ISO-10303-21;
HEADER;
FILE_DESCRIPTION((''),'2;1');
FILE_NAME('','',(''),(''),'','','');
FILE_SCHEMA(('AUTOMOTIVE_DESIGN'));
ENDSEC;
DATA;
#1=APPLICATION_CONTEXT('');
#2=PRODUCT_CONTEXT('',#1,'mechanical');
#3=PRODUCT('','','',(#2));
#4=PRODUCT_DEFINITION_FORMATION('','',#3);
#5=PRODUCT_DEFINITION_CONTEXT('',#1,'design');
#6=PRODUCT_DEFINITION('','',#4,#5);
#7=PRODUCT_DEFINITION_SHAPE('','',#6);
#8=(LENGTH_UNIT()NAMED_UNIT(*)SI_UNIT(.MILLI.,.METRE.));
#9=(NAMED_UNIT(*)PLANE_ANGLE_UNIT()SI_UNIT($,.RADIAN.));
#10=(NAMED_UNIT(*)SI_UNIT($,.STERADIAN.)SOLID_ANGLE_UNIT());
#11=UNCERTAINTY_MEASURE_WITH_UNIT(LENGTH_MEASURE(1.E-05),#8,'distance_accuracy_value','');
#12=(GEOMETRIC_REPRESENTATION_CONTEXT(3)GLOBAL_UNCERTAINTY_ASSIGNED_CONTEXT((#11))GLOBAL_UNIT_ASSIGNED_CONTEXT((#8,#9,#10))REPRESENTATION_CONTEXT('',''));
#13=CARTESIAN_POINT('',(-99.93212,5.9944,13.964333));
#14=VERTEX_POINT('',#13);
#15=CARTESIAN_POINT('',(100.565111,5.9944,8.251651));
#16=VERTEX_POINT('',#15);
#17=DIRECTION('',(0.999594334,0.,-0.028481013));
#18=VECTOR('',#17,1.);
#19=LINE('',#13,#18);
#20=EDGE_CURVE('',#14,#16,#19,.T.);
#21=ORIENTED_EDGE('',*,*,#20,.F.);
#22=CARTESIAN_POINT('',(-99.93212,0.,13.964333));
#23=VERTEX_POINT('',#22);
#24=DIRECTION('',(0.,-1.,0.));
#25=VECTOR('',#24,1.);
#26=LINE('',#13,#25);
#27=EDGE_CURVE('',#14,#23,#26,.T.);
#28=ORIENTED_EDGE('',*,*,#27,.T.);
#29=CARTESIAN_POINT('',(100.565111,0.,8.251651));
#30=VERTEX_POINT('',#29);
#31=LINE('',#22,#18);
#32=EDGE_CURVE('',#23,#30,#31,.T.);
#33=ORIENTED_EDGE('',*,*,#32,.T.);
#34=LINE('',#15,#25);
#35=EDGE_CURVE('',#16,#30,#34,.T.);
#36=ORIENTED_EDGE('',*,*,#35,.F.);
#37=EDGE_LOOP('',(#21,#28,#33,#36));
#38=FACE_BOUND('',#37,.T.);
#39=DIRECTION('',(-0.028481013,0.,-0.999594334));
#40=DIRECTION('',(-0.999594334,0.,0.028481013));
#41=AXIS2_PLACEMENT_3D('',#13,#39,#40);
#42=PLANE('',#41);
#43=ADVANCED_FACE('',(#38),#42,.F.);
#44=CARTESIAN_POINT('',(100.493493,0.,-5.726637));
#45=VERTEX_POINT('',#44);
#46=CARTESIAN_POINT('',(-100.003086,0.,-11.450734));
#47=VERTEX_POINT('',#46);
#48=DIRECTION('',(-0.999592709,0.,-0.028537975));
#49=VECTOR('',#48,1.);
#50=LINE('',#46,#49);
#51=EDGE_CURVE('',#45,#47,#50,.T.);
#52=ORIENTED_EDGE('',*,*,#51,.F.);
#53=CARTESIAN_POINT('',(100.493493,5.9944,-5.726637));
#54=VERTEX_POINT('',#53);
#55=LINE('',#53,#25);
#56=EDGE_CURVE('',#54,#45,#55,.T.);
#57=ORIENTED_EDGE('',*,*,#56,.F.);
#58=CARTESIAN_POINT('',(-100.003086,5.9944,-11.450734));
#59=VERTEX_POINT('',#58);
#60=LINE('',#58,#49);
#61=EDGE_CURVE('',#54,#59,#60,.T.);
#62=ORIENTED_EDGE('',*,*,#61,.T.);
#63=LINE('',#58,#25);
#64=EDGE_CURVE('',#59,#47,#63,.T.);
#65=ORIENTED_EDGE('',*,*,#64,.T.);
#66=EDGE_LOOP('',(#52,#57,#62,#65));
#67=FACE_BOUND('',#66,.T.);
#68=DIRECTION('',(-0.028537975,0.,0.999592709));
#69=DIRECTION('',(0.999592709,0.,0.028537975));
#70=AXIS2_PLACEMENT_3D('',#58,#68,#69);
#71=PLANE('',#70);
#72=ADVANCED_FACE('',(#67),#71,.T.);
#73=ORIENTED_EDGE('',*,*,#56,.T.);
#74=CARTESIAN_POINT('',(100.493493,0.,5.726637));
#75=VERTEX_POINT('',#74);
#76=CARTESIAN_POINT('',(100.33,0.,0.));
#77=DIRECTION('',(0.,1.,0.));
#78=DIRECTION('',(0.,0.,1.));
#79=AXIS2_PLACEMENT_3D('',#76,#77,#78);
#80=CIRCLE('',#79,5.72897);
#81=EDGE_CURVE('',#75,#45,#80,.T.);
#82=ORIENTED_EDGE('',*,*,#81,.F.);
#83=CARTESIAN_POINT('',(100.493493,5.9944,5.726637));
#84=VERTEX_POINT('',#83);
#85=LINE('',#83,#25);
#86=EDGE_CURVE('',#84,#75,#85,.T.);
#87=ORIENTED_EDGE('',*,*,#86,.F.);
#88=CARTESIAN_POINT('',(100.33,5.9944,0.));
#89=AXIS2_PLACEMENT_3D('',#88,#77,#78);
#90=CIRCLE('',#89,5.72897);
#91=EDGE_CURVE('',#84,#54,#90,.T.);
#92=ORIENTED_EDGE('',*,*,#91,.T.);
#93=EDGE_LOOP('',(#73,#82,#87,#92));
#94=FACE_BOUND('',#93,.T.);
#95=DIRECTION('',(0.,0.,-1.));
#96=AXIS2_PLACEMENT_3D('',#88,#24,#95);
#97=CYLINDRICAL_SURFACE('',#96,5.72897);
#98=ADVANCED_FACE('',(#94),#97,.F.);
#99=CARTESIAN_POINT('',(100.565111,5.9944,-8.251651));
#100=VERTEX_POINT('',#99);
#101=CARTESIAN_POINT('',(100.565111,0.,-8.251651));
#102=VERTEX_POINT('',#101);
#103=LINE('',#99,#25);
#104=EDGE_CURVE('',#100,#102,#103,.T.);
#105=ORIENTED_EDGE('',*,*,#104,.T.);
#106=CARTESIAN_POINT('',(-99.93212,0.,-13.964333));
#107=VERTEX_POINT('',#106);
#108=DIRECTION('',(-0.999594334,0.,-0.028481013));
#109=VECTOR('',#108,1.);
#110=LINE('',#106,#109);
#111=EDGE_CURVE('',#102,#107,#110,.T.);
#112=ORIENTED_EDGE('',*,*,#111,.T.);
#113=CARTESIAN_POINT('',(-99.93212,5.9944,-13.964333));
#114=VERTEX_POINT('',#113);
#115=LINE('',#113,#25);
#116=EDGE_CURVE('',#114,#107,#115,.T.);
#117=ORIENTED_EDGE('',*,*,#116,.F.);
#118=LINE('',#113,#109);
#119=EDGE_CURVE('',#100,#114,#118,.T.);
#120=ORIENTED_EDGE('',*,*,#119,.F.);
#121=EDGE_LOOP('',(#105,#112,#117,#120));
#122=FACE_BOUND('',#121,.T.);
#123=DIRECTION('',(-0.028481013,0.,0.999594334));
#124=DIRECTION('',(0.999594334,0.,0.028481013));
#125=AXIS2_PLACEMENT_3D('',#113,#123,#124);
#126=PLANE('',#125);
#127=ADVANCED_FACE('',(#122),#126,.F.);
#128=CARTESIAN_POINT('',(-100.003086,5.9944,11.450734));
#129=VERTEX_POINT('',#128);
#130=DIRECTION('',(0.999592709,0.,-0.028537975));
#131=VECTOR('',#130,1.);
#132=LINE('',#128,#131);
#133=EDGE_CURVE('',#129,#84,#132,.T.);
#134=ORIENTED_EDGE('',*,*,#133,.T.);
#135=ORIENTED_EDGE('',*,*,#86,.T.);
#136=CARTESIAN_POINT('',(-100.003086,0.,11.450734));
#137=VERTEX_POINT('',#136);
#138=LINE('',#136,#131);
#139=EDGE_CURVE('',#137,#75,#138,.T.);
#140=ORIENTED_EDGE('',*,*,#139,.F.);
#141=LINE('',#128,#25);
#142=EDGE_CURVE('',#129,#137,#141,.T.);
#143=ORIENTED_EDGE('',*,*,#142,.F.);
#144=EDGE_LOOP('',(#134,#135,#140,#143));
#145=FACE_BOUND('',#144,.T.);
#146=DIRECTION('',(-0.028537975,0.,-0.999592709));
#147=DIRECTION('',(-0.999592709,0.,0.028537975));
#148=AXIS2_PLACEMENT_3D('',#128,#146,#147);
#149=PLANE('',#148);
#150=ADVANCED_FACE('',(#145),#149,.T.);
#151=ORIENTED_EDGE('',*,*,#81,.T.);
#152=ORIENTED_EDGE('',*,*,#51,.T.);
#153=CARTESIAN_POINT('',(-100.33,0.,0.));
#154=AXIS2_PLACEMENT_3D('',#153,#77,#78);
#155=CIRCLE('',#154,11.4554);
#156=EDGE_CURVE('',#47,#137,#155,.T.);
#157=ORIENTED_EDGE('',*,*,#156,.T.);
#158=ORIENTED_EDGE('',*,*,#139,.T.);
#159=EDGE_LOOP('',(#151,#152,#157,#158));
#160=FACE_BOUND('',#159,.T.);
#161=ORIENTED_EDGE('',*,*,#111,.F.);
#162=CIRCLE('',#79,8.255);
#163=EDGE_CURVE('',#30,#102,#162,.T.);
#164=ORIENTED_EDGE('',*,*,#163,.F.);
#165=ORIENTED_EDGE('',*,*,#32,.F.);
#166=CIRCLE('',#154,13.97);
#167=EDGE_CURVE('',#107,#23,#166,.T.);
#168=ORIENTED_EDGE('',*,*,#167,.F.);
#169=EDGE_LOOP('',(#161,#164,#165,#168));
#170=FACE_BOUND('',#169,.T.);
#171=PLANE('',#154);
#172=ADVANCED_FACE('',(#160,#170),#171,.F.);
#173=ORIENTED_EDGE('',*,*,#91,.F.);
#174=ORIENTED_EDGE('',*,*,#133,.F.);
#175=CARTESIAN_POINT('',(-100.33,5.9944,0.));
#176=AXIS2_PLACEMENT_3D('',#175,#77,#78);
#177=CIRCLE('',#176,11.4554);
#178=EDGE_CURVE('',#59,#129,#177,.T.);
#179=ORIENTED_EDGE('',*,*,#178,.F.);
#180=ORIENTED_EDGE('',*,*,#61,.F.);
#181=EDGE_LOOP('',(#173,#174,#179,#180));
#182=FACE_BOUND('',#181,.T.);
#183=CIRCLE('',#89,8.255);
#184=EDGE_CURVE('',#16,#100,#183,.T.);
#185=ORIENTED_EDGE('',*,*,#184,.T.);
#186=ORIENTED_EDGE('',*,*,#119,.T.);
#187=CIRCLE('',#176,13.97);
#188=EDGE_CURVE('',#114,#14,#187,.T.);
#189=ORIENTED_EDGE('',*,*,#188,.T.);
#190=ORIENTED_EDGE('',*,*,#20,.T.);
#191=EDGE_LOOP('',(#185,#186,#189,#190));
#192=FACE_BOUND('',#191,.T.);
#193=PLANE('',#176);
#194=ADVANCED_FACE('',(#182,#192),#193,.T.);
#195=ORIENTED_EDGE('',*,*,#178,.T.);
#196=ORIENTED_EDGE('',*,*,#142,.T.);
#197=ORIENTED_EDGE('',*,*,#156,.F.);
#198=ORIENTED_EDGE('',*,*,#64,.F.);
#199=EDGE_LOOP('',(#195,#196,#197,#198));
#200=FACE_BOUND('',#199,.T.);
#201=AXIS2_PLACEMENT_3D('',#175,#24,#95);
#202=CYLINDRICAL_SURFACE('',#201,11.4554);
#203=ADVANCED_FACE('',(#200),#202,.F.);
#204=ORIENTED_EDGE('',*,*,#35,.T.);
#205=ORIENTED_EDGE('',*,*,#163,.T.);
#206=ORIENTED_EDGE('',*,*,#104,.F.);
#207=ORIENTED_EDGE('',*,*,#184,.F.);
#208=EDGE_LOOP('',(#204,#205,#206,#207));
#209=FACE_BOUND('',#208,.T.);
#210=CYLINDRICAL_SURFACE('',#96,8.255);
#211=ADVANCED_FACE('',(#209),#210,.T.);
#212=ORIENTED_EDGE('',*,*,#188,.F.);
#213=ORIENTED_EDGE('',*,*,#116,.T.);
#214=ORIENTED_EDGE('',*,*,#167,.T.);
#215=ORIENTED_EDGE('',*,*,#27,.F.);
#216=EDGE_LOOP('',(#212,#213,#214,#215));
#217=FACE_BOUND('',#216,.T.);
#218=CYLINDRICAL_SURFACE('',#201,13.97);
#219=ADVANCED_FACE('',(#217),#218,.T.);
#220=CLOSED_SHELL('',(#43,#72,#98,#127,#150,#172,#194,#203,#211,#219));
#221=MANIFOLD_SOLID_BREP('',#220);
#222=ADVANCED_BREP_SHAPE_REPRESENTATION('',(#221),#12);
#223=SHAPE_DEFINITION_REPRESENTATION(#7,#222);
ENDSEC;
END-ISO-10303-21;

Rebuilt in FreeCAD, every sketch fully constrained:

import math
import FreeCAD as App
import Part
import Sketcher
from FreeCAD import Vector
Q = App.Units.Quantity

doc = App.newDocument("Part")
body = doc.addObject("PartDesign::Body", "Body")

# Sketch on XZ plane
sketch1 = body.newObject("Sketcher::SketchObject", "Sketch")
sketch1.AttachmentSupport = (doc.getObject("XZ_Plane"), [""])
sketch1.MapMode = "FlatFace"
sketch1.addGeometry(Part.LineSegment(Vector(100.565111, -8.251651, 0), Vector(-99.93212, -13.964333, 0)), False)
sketch1.addGeometry(Part.ArcOfCircle(Part.Circle(Vector(-100.33, 0, 0), Vector(0, 0, 1), 13.97), math.radians(88.367937), math.radians(271.632063)), False)
sketch1.addGeometry(Part.LineSegment(Vector(-99.93212, 13.964333, 0), Vector(100.565111, 8.251651, 0)), False)
sketch1.addGeometry(Part.ArcOfCircle(Part.Circle(Vector(100.33, 0, 0), Vector(0, 0, 1), 8.255), math.radians(-88.367937), math.radians(88.367937)), False)
sketch1.addGeometry(Part.LineSegment(Vector(-100.003086, -11.450734, 0), Vector(100.493493, -5.726637, 0)), False)
sketch1.addGeometry(Part.ArcOfCircle(Part.Circle(Vector(100.33, 0, 0), Vector(0, 0, 1), 5.72897), math.radians(-88.364672), math.radians(88.364672)), False)
sketch1.addGeometry(Part.LineSegment(Vector(100.493493, 5.726637, 0), Vector(-100.003086, 11.450734, 0)), False)
sketch1.addGeometry(Part.ArcOfCircle(Part.Circle(Vector(-100.33, 0, 0), Vector(0, 0, 1), 11.4554), math.radians(88.364672), math.radians(271.635328)), False)
sketch1.addConstraint(Sketcher.Constraint("Tangent", 0, 2, 1, 2))
sketch1.addConstraint(Sketcher.Constraint("Tangent", 1, 1, 2, 1))
sketch1.addConstraint(Sketcher.Constraint("Tangent", 2, 2, 3, 2))
sketch1.addConstraint(Sketcher.Constraint("Tangent", 3, 1, 0, 1))
sketch1.addConstraint(Sketcher.Constraint("Tangent", 4, 2, 5, 1))
sketch1.addConstraint(Sketcher.Constraint("Tangent", 5, 2, 6, 1))
sketch1.addConstraint(Sketcher.Constraint("Tangent", 6, 2, 7, 1))
sketch1.addConstraint(Sketcher.Constraint("Tangent", 7, 2, 4, 1))
sketch1.addConstraint(Sketcher.Constraint("Coincident", 5, 3, 3, 3))
sketch1.addConstraint(Sketcher.Constraint("Coincident", 7, 3, 1, 3))
sketch1.addConstraint(Sketcher.Constraint("Symmetric", 1, 3, 3, 3, -1, 1))
sketch1.addConstraint(Sketcher.Constraint("PointOnObject", 1, 3, -1))
sketch1.addConstraint(Sketcher.Constraint("Radius", 1, Q("0.55 in")))
sketch1.addConstraint(Sketcher.Constraint("Radius", 3, Q("0.325 in")))
sketch1.addConstraint(Sketcher.Constraint("Radius", 7, Q("0.451 in")))
sketch1.addConstraint(Sketcher.Constraint("DistanceX", 1, 3, 3, 3, Q("7.9 in")))
sketch1.addConstraint(Sketcher.Constraint("Radius", 5, Q("5.72897 mm")))
pad1 = body.newObject("PartDesign::Pad", "Pad")
pad1.Profile = sketch1
pad1.Length = Q("0.236 in")
pad1.Reversed = True

doc.recompute()
